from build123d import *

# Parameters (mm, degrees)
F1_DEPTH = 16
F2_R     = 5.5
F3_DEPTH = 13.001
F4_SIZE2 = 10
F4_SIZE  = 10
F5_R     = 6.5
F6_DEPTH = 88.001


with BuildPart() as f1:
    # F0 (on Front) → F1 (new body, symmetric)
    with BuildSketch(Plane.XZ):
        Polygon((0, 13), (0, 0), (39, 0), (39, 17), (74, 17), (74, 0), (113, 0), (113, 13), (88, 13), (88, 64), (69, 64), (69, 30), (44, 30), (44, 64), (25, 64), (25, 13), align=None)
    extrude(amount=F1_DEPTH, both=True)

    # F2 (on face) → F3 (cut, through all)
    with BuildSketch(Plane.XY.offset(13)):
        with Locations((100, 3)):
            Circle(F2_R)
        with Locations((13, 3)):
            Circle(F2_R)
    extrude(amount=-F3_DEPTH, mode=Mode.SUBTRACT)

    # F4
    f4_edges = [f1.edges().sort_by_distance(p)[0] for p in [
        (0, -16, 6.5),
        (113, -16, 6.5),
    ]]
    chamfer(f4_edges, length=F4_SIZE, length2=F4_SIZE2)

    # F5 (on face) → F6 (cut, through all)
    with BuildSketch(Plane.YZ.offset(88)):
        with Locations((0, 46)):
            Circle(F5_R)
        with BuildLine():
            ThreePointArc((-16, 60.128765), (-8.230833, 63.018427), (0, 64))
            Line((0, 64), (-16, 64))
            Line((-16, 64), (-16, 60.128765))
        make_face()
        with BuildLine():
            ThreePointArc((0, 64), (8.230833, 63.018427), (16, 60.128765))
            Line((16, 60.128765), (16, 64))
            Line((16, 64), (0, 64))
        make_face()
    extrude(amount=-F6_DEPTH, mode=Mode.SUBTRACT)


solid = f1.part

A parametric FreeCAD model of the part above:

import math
import FreeCAD as App
import Part
import Sketcher

V = App.Vector
Q = App.Units.Quantity


def edges_at(feature, points):
    """Names of the edges that pass closest to the given points."""
    edges = feature.Shape.Edges
    near = lambda p: min(range(len(edges)), key=lambda i: edges[i].distToShape(Part.Vertex(*p))[0])
    return sorted({f"Edge{near(p) + 1}" for p in points})

doc = App.newDocument("Part")
body = doc.addObject("PartDesign::Body", "Body")

# Sketch on XZ plane
sketch1 = body.newObject("Sketcher::SketchObject", "Sketch")
sketch1.AttachmentSupport = (doc.getObject("XZ_Plane"), [""])
sketch1.MapMode = "FlatFace"
sketch1.addGeometry([
    Part.LineSegment(V(0, 13, 0), V(0, 0, 0)),  # 0
    Part.LineSegment(V(0, 0, 0), V(39, 0, 0)),  # 1
    Part.LineSegment(V(39, 0, 0), V(39, 17, 0)),  # 2
    Part.LineSegment(V(39, 17, 0), V(74, 17, 0)),  # 3
    Part.LineSegment(V(74, 17, 0), V(74, 0, 0)),  # 4
    Part.LineSegment(V(74, 0, 0), V(113, 0, 0)),  # 5
    Part.LineSegment(V(113, 0, 0), V(113, 13, 0)),  # 6
    Part.LineSegment(V(113, 13, 0), V(88, 13, 0)),  # 7
    Part.LineSegment(V(88, 13, 0), V(88, 64, 0)),  # 8
    Part.LineSegment(V(88, 64, 0), V(69, 64, 0)),  # 9
    Part.LineSegment(V(69, 64, 0), V(69, 30, 0)),  # 10
    Part.LineSegment(V(69, 30, 0), V(44, 30, 0)),  # 11
    Part.LineSegment(V(44, 30, 0), V(44, 64, 0)),  # 12
    Part.LineSegment(V(44, 64, 0), V(25, 64, 0)),  # 13
    Part.LineSegment(V(25, 64, 0), V(25, 13, 0)),  # 14
    Part.LineSegment(V(25, 13, 0), V(0, 13, 0)),  # 15
], False)
sketch1.addConstraint([
    Sketcher.Constraint("Coincident", 0, 2, 1, 1),
    Sketcher.Constraint("Coincident", 1, 2, 2, 1),
    Sketcher.Constraint("Coincident", 2, 2, 3, 1),
    Sketcher.Constraint("Coincident", 3, 2, 4, 1),
    Sketcher.Constraint("Coincident", 4, 2, 5, 1),
    Sketcher.Constraint("Coincident", 5, 2, 6, 1),
    Sketcher.Constraint("Coincident", 6, 2, 7, 1),
    Sketcher.Constraint("Coincident", 7, 2, 8, 1),
    Sketcher.Constraint("Coincident", 8, 2, 9, 1),
    Sketcher.Constraint("Coincident", 9, 2, 10, 1),
    Sketcher.Constraint("Coincident", 10, 2, 11, 1),
    Sketcher.Constraint("Coincident", 11, 2, 12, 1),
    Sketcher.Constraint("Coincident", 12, 2, 13, 1),
    Sketcher.Constraint("Coincident", 13, 2, 14, 1),
    Sketcher.Constraint("Coincident", 14, 2, 15, 1),
    Sketcher.Constraint("Coincident", 15, 2, 0, 1),
    Sketcher.Constraint("Vertical", 0),
    Sketcher.Constraint("Horizontal", 1),
    Sketcher.Constraint("Vertical", 2),
    Sketcher.Constraint("Horizontal", 3),
    Sketcher.Constraint("Vertical", 4),
    Sketcher.Constraint("Horizontal", 5),
    Sketcher.Constraint("Vertical", 6),
    Sketcher.Constraint("Horizontal", 7),
    Sketcher.Constraint("Vertical", 8),
    Sketcher.Constraint("Horizontal", 9),
    Sketcher.Constraint("Vertical", 10),
    Sketcher.Constraint("Horizontal", 11),
    Sketcher.Constraint("Vertical", 12),
    Sketcher.Constraint("Horizontal", 13),
    Sketcher.Constraint("Vertical", 14),
    Sketcher.Constraint("Horizontal", 15),
    Sketcher.Constraint("Coincident", 0, 2, -1, 1),
    Sketcher.Constraint("PointOnObject", 4, 2, -1),
    Sketcher.Constraint("Horizontal", 9, 2, 12, 2),
    Sketcher.Constraint("Horizontal", 7, 2, 14, 2),
    Sketcher.Constraint("Equal", 1, 5),
    Sketcher.Constraint("Equal", 7, 11),
    Sketcher.Constraint("Equal", 9, 13),
    Sketcher.Constraint("Equal", 11, 15),
    Sketcher.Constraint("DistanceX", 1, 1, 1, 2, Q("39 mm")),
    Sketcher.Constraint("DistanceX", 3, 1, 3, 2, Q("35 mm")),
    Sketcher.Constraint("DistanceX", 7, 2, 7, 1, Q("25 mm")),
    Sketcher.Constraint("DistanceY", 0, 2, 0, 1, Q("13 mm")),
    Sketcher.Constraint("DistanceY", 2, 1, 2, 2, Q("17 mm")),
    Sketcher.Constraint("DistanceY", 8, 1, 8, 2, Q("51 mm")),
    Sketcher.Constraint("DistanceY", 10, 2, 10, 1, Q("34 mm")),
])
pad1 = body.newObject("PartDesign::Pad", "Pad")
pad1.Profile = sketch1
pad1.Length = 32
pad1.Midplane = True

# Sketch on XY plane
sketch2 = body.newObject("Sketcher::SketchObject", "Sketch001")
sketch2.AttachmentSupport = (doc.getObject("XY_Plane"), [""])
sketch2.MapMode = "FlatFace"
sketch2.AttachmentOffset = App.Placement(V(0, 0, 13), App.Rotation())
sketch2.addGeometry([
    Part.Circle(V(100, 3, 0), V(0, 0, 1), 6),
    Part.Circle(V(13, 3, 0), V(0, 0, 1), 6),
], False)
sketch2.addConstraint([
    Sketcher.Constraint("Equal", 0, 1),
    Sketcher.Constraint("Horizontal", 0, 3, 1, 3),
    Sketcher.Constraint("Diameter", 0, Q("11 mm")),
    Sketcher.Constraint("DistanceX", -1, 1, 0, 3, Q("100 mm")),
    Sketcher.Constraint("DistanceY", -1, 1, 0, 3, Q("3 mm")),
    Sketcher.Constraint("DistanceX", -1, 1, 1, 3, Q("13 mm")),
])
pocket1 = body.newObject("PartDesign::Pocket", "Pocket")
pocket1.Profile = sketch2
pocket1.Type = "ThroughAll"
doc.recompute()

chamfer = body.newObject("PartDesign::Chamfer", "Chamfer")
chamfer.Base = (pocket1, edges_at(pocket1, [(0, -16, 6.5), (113, -16, 6.5)]))
chamfer.ChamferType = "Two distances"
chamfer.Size = 10
chamfer.Size2 = 10

# Sketch on YZ plane
sketch3 = body.newObject("Sketcher::SketchObject", "Sketch002")
sketch3.AttachmentSupport = (doc.getObject("YZ_Plane"), [""])
sketch3.MapMode = "FlatFace"
sketch3.AttachmentOffset = App.Placement(V(0, 0, 88), App.Rotation())
sketch3.addGeometry([
    Part.Circle(V(0, 46, 0), V(0, 0, 1), 6.5),  # 0
    Part.ArcOfCircle(Part.Circle(V(0, 29, 0), V(0, 0, 1), 35), math.radians(90), math.radians(117)),  # 1
    Part.LineSegment(V(0, 64, 0), V(-16, 64, 0)),  # 2
    Part.LineSegment(V(-16, 64, 0), V(-16, 60.1, 0)),  # 3
    Part.ArcOfCircle(Part.Circle(V(0, 29, 0), V(0, 0, 1), 35), math.radians(63), math.radians(90)),  # 4
    Part.LineSegment(V(16, 60.1, 0), V(16, 64, 0)),  # 5
    Part.LineSegment(V(16, 64, 0), V(0, 64, 0)),  # 6
], False)
sketch3.addConstraint([
    Sketcher.Constraint("Tangent", 1, 1, 2, 1),
    Sketcher.Constraint("Coincident", 2, 2, 3, 1),
    Sketcher.Constraint("Coincident", 3, 2, 1, 2),
    Sketcher.Constraint("Coincident", 4, 1, 5, 1),
    Sketcher.Constraint("Coincident", 5, 2, 6, 1),
    Sketcher.Constraint("Tangent", 6, 2, 4, 2),
    Sketcher.Constraint("Horizontal", 2),
    Sketcher.Constraint("Vertical", 3),
    Sketcher.Constraint("Vertical", 5),
    Sketcher.Constraint("Horizontal", 6),
    Sketcher.Constraint("Coincident", 4, 3, 1, 3),
    Sketcher.Constraint("Equal", 1, 4),
    Sketcher.Constraint("Symmetric", 3, 2, 4, 1, -2),
    Sketcher.Constraint("PointOnObject", 0, 3, -2),
    Sketcher.Constraint("Diameter", 0, Q("13 mm")),
    Sketcher.Constraint("DistanceX", 2, 2, 2, 1, Q("16 mm")),
    Sketcher.Constraint("DistanceY", -1, 1, 0, 3, Q("46 mm")),
    Sketcher.Constraint("DistanceY", -1, 1, 1, 1, Q("64 mm")),
    Sketcher.Constraint("Radius", 1, Q("35.000009 mm")),
])
pocket2 = body.newObject("PartDesign::Pocket", "Pocket001")
pocket2.Profile = sketch3
pocket2.Type = "ThroughAll"

doc.recompute()
